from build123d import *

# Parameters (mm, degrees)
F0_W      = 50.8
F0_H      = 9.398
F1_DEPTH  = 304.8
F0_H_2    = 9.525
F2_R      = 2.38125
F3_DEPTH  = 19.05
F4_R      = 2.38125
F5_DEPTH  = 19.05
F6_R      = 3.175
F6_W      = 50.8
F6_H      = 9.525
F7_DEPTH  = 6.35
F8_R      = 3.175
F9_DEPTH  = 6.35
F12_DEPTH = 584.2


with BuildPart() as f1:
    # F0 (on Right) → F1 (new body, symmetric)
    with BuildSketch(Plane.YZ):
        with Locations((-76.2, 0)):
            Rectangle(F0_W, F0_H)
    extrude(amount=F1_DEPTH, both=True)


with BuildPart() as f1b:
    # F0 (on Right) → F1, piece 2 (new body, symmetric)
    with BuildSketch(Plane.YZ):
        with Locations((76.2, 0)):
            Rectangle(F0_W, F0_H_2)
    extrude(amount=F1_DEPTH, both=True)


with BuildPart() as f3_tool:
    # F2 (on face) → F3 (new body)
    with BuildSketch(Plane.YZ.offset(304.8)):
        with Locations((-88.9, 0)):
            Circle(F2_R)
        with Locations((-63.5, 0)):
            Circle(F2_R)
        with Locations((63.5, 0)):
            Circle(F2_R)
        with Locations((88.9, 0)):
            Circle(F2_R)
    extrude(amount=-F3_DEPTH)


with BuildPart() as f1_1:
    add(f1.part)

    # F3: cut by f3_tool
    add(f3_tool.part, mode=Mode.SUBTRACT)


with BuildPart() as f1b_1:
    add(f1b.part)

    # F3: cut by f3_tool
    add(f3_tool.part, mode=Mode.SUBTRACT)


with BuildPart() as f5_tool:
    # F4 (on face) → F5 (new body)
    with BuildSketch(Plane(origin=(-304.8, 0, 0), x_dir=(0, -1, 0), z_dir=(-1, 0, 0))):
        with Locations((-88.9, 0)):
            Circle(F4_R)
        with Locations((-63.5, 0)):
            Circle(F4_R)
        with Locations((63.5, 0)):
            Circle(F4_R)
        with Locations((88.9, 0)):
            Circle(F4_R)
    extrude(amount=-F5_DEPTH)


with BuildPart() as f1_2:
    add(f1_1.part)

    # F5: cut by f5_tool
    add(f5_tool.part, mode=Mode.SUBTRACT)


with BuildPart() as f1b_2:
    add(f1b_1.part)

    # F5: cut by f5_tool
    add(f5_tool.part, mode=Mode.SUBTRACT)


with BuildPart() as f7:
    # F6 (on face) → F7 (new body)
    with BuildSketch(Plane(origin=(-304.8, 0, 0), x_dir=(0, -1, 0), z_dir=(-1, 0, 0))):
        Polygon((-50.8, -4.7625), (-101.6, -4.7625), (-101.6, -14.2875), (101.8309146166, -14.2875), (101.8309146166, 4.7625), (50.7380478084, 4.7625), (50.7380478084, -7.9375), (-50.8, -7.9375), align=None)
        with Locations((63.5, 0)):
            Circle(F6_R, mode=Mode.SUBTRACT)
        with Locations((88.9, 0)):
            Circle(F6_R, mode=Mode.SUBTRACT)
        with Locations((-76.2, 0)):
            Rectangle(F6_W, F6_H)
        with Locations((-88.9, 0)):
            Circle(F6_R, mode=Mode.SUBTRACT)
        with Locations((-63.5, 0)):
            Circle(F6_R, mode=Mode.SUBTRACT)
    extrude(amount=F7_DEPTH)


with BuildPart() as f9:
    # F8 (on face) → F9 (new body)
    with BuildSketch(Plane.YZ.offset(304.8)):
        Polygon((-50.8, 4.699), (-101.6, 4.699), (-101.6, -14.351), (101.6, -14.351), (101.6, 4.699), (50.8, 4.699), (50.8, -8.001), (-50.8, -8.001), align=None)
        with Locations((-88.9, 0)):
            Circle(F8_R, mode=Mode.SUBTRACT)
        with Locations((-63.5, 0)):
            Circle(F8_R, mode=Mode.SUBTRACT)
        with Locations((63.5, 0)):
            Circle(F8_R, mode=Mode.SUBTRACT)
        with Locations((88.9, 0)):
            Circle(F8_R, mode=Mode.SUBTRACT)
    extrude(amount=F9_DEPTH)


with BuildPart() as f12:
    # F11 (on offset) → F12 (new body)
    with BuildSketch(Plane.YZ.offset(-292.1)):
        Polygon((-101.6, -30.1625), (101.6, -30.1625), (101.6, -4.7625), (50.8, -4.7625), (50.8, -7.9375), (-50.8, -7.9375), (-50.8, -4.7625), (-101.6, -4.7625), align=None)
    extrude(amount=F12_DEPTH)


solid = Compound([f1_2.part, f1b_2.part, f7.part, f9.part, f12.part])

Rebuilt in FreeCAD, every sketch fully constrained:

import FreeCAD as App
import Part
import Sketcher
from FreeCAD import Vector
Q = App.Units.Quantity

doc = App.newDocument("Part")
body = doc.addObject("PartDesign::Body", "Body")

# Sketch on YZ plane
sketch1 = doc.addObject("Sketcher::SketchObject", "Sketch")
body.addObject(sketch1)
sketch1.AttachmentSupport = (doc.YZ_Plane, [""])
sketch1.MapMode = "FlatFace"
sketch1.addGeometry([
    Part.LineSegment(Vector(-101.6, 4.699, 0), Vector(-101.6, -4.699, 0)),
    Part.LineSegment(Vector(-101.6, -4.699, 0), Vector(-50.8, -4.699, 0)),
    Part.LineSegment(Vector(-50.8, -4.699, 0), Vector(-50.8, 4.699, 0)),
    Part.LineSegment(Vector(-50.8, 4.699, 0), Vector(-101.6, 4.699, 0)),
], False)
sketch1.addConstraint([
    Sketcher.Constraint("Coincident", 0, 2, 1, 1),
    Sketcher.Constraint("Coincident", 1, 2, 2, 1),
    Sketcher.Constraint("Coincident", 2, 2, 3, 1),
    Sketcher.Constraint("Coincident", 3, 2, 0, 1),
    Sketcher.Constraint("Vertical", 0),
    Sketcher.Constraint("Horizontal", 1),
    Sketcher.Constraint("Vertical", 2),
    Sketcher.Constraint("Horizontal", 3),
    Sketcher.Constraint("DistanceX", 1, 1, 1, 2, Q("2 in")),
    Sketcher.Constraint("DistanceX", 0, 2, -1, 1, Q("4 in")),
    Sketcher.Constraint("DistanceY", 0, 2, 0, 1, Q("0.37 in")),
    Sketcher.Constraint("DistanceY", 0, 2, -1, 1, Q("0.185 in")),
])
pad1 = doc.addObject("PartDesign::Pad", "Pad")
body.addObject(pad1)
pad1.Profile = sketch1
pad1.Length = Q("24 in")
pad1.Midplane = True
body2 = doc.addObject("PartDesign::Body", "Body001")

# Sketch on YZ plane
sketch2 = doc.addObject("Sketcher::SketchObject", "Sketch001")
body2.addObject(sketch2)
sketch2.AttachmentSupport = (doc.getObject("YZ_Plane001"), [""])
sketch2.MapMode = "FlatFace"
sketch2.addGeometry([
    Part.LineSegment(Vector(50.8, 4.7625, 0), Vector(50.8, -4.7625, 0)),
    Part.LineSegment(Vector(50.8, -4.7625, 0), Vector(101.6, -4.7625, 0)),
    Part.LineSegment(Vector(101.6, -4.7625, 0), Vector(101.6, 4.7625, 0)),
    Part.LineSegment(Vector(101.6, 4.7625, 0), Vector(50.8, 4.7625, 0)),
], False)
sketch2.addConstraint([
    Sketcher.Constraint("Coincident", 0, 2, 1, 1),
    Sketcher.Constraint("Coincident", 1, 2, 2, 1),
    Sketcher.Constraint("Coincident", 2, 2, 3, 1),
    Sketcher.Constraint("Coincident", 3, 2, 0, 1),
    Sketcher.Constraint("Vertical", 0),
    Sketcher.Constraint("Horizontal", 1),
    Sketcher.Constraint("Vertical", 2),
    Sketcher.Constraint("Horizontal", 3),
    Sketcher.Constraint("DistanceX", 1, 1, 1, 2, Q("2 in")),
    Sketcher.Constraint("DistanceX", -1, 1, 0, 2, Q("2 in")),
    Sketcher.Constraint("DistanceY", 0, 2, 0, 1, Q("0.375 in")),
    Sketcher.Constraint("DistanceY", 0, 2, -1, 1, Q("0.1875 in")),
])
pad2 = doc.addObject("PartDesign::Pad", "Pad001")
body2.addObject(pad2)
pad2.Profile = sketch2
pad2.Length = Q("24 in")
pad2.Midplane = True
body3 = doc.addObject("PartDesign::Body", "Body002")
body3.AllowCompound = True

# Sketch on YZ plane
sketch3 = doc.addObject("Sketcher::SketchObject", "Sketch002")
body3.addObject(sketch3)
sketch3.AttachmentSupport = (doc.getObject("YZ_Plane002"), [""])
sketch3.MapMode = "FlatFace"
sketch3.AttachmentOffset = App.Placement(Vector(0, 0, 12 * 25.4), App.Rotation())
sketch3.addGeometry([
    Part.Circle(Vector(-88.9, 0, 0), Vector(0, 0, 1), 2.38125),
    Part.Circle(Vector(-63.5, 0, 0), Vector(0, 0, 1), 2.38125),
    Part.Circle(Vector(63.5, 0, 0), Vector(0, 0, 1), 2.38125),
    Part.Circle(Vector(88.9, 0, 0), Vector(0, 0, 1), 2.38125),
], False)
sketch3.addConstraint([
    Sketcher.Constraint("Equal", 0, 1),
    Sketcher.Constraint("Equal", 1, 2),
    Sketcher.Constraint("Equal", 2, 3),
    Sketcher.Constraint("Symmetric", 1, 3, 2, 3, -1, 1),
    Sketcher.Constraint("Symmetric", 0, 3, 3, 3, -1, 1),
    Sketcher.Constraint("PointOnObject", 0, 3, -1),
    Sketcher.Constraint("PointOnObject", 1, 3, -1),
    Sketcher.Constraint("Diameter", 0, Q("0.1875 in")),
    Sketcher.Constraint("DistanceX", 0, 3, 1, 3, Q("1 in")),
    Sketcher.Constraint("DistanceX", 1, 3, 2, 3, Q("5 in")),
])
pad3 = doc.addObject("PartDesign::Pad", "Pad002")
body3.addObject(pad3)
pad3.Profile = sketch3
pad3.Length = Q("0.75 in")
pad3.Reversed = True
doc.recompute()

body4 = doc.addObject("PartDesign::Body", "Body003")
body4.BaseFeature = body3
boolean = doc.addObject("PartDesign::Boolean", "Boolean")
body.addObject(boolean)
boolean.Type = "Cut"
boolean.addObjects([body4])
doc.recompute()

boolean2 = doc.addObject("PartDesign::Boolean", "Boolean001")
body2.addObject(boolean2)
boolean2.Type = "Cut"
boolean2.addObjects([body3])
body5 = doc.addObject("PartDesign::Body", "Body004")
body5.AllowCompound = True

# Sketch on YZ plane
sketch4 = doc.addObject("Sketcher::SketchObject", "Sketch003")
body5.addObject(sketch4)
sketch4.AttachmentSupport = (doc.getObject("YZ_Plane004"), [""])
sketch4.MapMode = "FlatFace"
sketch4.AttachmentOffset = App.Placement(Vector(0, 0, -12 * 25.4), App.Rotation())
sketch4.addGeometry([
    Part.Circle(Vector(88.9, 0, 0), Vector(0, 0, 1), 2.38125),
    Part.Circle(Vector(63.5, 0, 0), Vector(0, 0, 1), 2.38125),
    Part.Circle(Vector(-63.5, 0, 0), Vector(0, 0, 1), 2.38125),
    Part.Circle(Vector(-88.9, 0, 0), Vector(0, 0, 1), 2.38125),
], False)
sketch4.addConstraint([
    Sketcher.Constraint("Equal", 0, 1),
    Sketcher.Constraint("Equal", 1, 2),
    Sketcher.Constraint("Equal", 2, 3),
    Sketcher.Constraint("Symmetric", 1, 3, 2, 3, -1, 1),
    Sketcher.Constraint("Symmetric", 0, 3, 3, 3, -1, 1),
    Sketcher.Constraint("PointOnObject", 0, 3, -1),
    Sketcher.Constraint("PointOnObject", 1, 3, -1),
    Sketcher.Constraint("Diameter", 0, Q("0.1875 in")),
    Sketcher.Constraint("DistanceX", 1, 3, 0, 3, Q("1 in")),
    Sketcher.Constraint("DistanceX", 2, 3, 1, 3, Q("5 in")),
])
pad4 = doc.addObject("PartDesign::Pad", "Pad003")
body5.addObject(pad4)
pad4.Profile = sketch4
pad4.Length = Q("0.75 in")
doc.recompute()

body6 = doc.addObject("PartDesign::Body", "Body005")
body6.BaseFeature = body5
boolean3 = doc.addObject("PartDesign::Boolean", "Boolean002")
body.addObject(boolean3)
boolean3.Type = "Cut"
boolean3.addObjects([body6])
doc.recompute()

boolean4 = doc.addObject("PartDesign::Boolean", "Boolean003")
body2.addObject(boolean4)
boolean4.Type = "Cut"
boolean4.addObjects([body5])
body7 = doc.addObject("PartDesign::Body", "Body006")

# Sketch on YZ plane
sketch5 = doc.addObject("Sketcher::SketchObject", "Sketch004")
body7.addObject(sketch5)
sketch5.AttachmentSupport = (doc.getObject("YZ_Plane006"), [""])
sketch5.MapMode = "FlatFace"
sketch5.AttachmentOffset = App.Placement(Vector(0, 0, -12 * 25.4), App.Rotation())
sketch5.addGeometry([
    Part.LineSegment(Vector(50.8, -7.9375, 0), Vector(50.8, 4.7625, 0)),  # 0
    Part.LineSegment(Vector(50.8, 4.7625, 0), Vector(101.6, 4.7625, 0)),  # 1
    Part.LineSegment(Vector(101.6, 4.7625, 0), Vector(101.6, -14.2875, 0)),  # 2
    Part.LineSegment(Vector(101.6, -14.2875, 0), Vector(-101.830915, -14.2875, 0)),  # 3
    Part.LineSegment(Vector(-101.830915, -14.2875, 0), Vector(-101.830915, 4.7625, 0)),  # 4
    Part.LineSegment(Vector(-101.830915, 4.7625, 0), Vector(-50.738048, 4.7625, 0)),  # 5
    Part.LineSegment(Vector(-50.738048, 4.7625, 0), Vector(-50.738048, -7.9375, 0)),  # 6
    Part.LineSegment(Vector(-50.738048, -7.9375, 0), Vector(50.8, -7.9375, 0)),  # 7
    Part.Circle(Vector(88.9, 0, 0), Vector(0, 0, 1), 3.175),  # 8
    Part.Circle(Vector(63.5, 0, 0), Vector(0, 0, 1), 3.175),  # 9
    Part.Circle(Vector(-63.5, 0, 0), Vector(0, 0, 1), 3.175),  # 10
    Part.Circle(Vector(-88.9, 0, 0), Vector(0, 0, 1), 3.175),  # 11
], False)
sketch5.addConstraint([
    Sketcher.Constraint("Coincident", 0, 2, 1, 1),
    Sketcher.Constraint("Coincident", 1, 2, 2, 1),
    Sketcher.Constraint("Coincident", 2, 2, 3, 1),
    Sketcher.Constraint("Coincident", 3, 2, 4, 1),
    Sketcher.Constraint("Coincident", 4, 2, 5, 1),
    Sketcher.Constraint("Coincident", 5, 2, 6, 1),
    Sketcher.Constraint("Coincident", 6, 2, 7, 1),
    Sketcher.Constraint("Coincident", 7, 2, 0, 1),
    Sketcher.Constraint("Vertical", 0),
    Sketcher.Constraint("Horizontal", 1),
    Sketcher.Constraint("Vertical", 2),
    Sketcher.Constraint("Horizontal", 3),
    Sketcher.Constraint("Vertical", 4),
    Sketcher.Constraint("Horizontal", 5),
    Sketcher.Constraint("Vertical", 6),
    Sketcher.Constraint("Horizontal", 7),
    Sketcher.Constraint("Equal", 8, 9),
    Sketcher.Constraint("Equal", 9, 10),
    Sketcher.Constraint("Equal", 10, 11),
    Sketcher.Constraint("Symmetric", 9, 3, 10, 3, -1, 1),
    Sketcher.Constraint("Symmetric", 8, 3, 11, 3, -1, 1),
    Sketcher.Constraint("PointOnObject", 8, 3, -1),
    Sketcher.Constraint("PointOnObject", 9, 3, -1),
    Sketcher.Constraint("Horizontal", 1, 2, 4, 2),
    Sketcher.Constraint("Diameter", 8, Q("0.25 in")),
    Sketcher.Constraint("DistanceX", 1, 1, 1, 2, Q("2 in")),
    Sketcher.Constraint("DistanceY", 0, 1, 0, 2, Q("0.5 in")),
    Sketcher.Constraint("DistanceX", -1, 1, 0, 2, Q("2 in")),
    Sketcher.Constraint("DistanceX", 9, 3, 8, 3, Q("1 in")),
    Sketcher.Constraint("DistanceX", 10, 3, 9, 3, Q("5 in")),
    Sketcher.Constraint("DistanceY", 2, 2, 2, 1, Q("0.75 in")),
    Sketcher.Constraint("DistanceY", -1, 1, 0, 2, Q("0.1875 in")),
    Sketcher.Constraint("DistanceX", 3, 2, 3, 1, Q("203.430915 mm")),
    Sketcher.Constraint("DistanceX", 5, 1, 5, 2, Q("51.092867 mm")),
])
pad5 = doc.addObject("PartDesign::Pad", "Pad004")
body7.addObject(pad5)
pad5.Profile = sketch5
pad5.Length = Q("0.25 in")
pad5.Reversed = True
body8 = doc.addObject("PartDesign::Body", "Body007")

# Sketch on YZ plane
sketch6 = doc.addObject("Sketcher::SketchObject", "Sketch005")
body8.addObject(sketch6)
sketch6.AttachmentSupport = (doc.getObject("YZ_Plane007"), [""])
sketch6.MapMode = "FlatFace"
sketch6.AttachmentOffset = App.Placement(Vector(0, 0, 12 * 25.4), App.Rotation())
sketch6.addGeometry([
    Part.LineSegment(Vector(-50.8, 4.699, 0), Vector(-101.6, 4.699, 0)),  # 0
    Part.LineSegment(Vector(-101.6, 4.699, 0), Vector(-101.6, -14.351, 0)),  # 1
    Part.LineSegment(Vector(-101.6, -14.351, 0), Vector(101.6, -14.351, 0)),  # 2
    Part.LineSegment(Vector(101.6, -14.351, 0), Vector(101.6, 4.699, 0)),  # 3
    Part.LineSegment(Vector(101.6, 4.699, 0), Vector(50.8, 4.699, 0)),  # 4
    Part.LineSegment(Vector(50.8, 4.699, 0), Vector(50.8, -8.001, 0)),  # 5
    Part.LineSegment(Vector(50.8, -8.001, 0), Vector(-50.8, -8.001, 0)),  # 6
    Part.LineSegment(Vector(-50.8, -8.001, 0), Vector(-50.8, 4.699, 0)),  # 7
    Part.Circle(Vector(-88.9, 0, 0), Vector(0, 0, 1), 3.175),  # 8
    Part.Circle(Vector(-63.5, 0, 0), Vector(0, 0, 1), 3.175),  # 9
    Part.Circle(Vector(63.5, 0, 0), Vector(0, 0, 1), 3.175),  # 10
    Part.Circle(Vector(88.9, 0, 0), Vector(0, 0, 1), 3.175),  # 11
], False)
sketch6.addConstraint([
    Sketcher.Constraint("Coincident", 0, 2, 1, 1),
    Sketcher.Constraint("Coincident", 1, 2, 2, 1),
    Sketcher.Constraint("Coincident", 2, 2, 3, 1),
    Sketcher.Constraint("Coincident", 3, 2, 4, 1),
    Sketcher.Constraint("Coincident", 4, 2, 5, 1),
    Sketcher.Constraint("Coincident", 5, 2, 6, 1),
    Sketcher.Constraint("Coincident", 6, 2, 7, 1),
    Sketcher.Constraint("Coincident", 7, 2, 0, 1),
    Sketcher.Constraint("Horizontal", 0),
    Sketcher.Constraint("Vertical", 1),
    Sketcher.Constraint("Horizontal", 2),
    Sketcher.Constraint("Vertical", 3),
    Sketcher.Constraint("Horizontal", 4),
    Sketcher.Constraint("Vertical", 5),
    Sketcher.Constraint("Horizontal", 6),
    Sketcher.Constraint("Vertical", 7),
    Sketcher.Constraint("Equal", 8, 9),
    Sketcher.Constraint("Equal", 9, 10),
    Sketcher.Constraint("Equal", 10, 11),
    Sketcher.Constraint("Symmetric", 9, 3, 10, 3, -1, 1),
    Sketcher.Constraint("Symmetric", 8, 3, 11, 3, -1, 1),
    Sketcher.Constraint("Symmetric", 0, 2, 3, 2, -2),
    Sketcher.Constraint("PointOnObject", 8, 3, -1),
    Sketcher.Constraint("PointOnObject", 9, 3, -1),
    Sketcher.Constraint("Equal", 0, 4),
    Sketcher.Constraint("Diameter", 8, Q("0.25 in")),
    Sketcher.Constraint("DistanceX", 0, 2, 0, 1, Q("2 in")),
    Sketcher.Constraint("DistanceX", 2, 1, 2, 2, Q("8 in")),
    Sketcher.Constraint("DistanceY", 5, 2, 5, 1, Q("0.5 in")),
    Sketcher.Constraint("DistanceX", 8, 3, 9, 3, Q("1 in")),
    Sketcher.Constraint("DistanceX", 9, 3, 10, 3, Q("5 in")),
    Sketcher.Constraint("DistanceY", 1, 2, 1, 1, Q("0.75 in")),
    Sketcher.Constraint("DistanceY", -1, 1, 0, 2, Q("0.185 in")),
])
pad6 = doc.addObject("PartDesign::Pad", "Pad005")
body8.addObject(pad6)
pad6.Profile = sketch6
pad6.Length = Q("0.25 in")
body9 = doc.addObject("PartDesign::Body", "Body008")

# Sketch on YZ plane
sketch7 = doc.addObject("Sketcher::SketchObject", "Sketch006")
body9.addObject(sketch7)
sketch7.AttachmentSupport = (doc.getObject("YZ_Plane008"), [""])
sketch7.MapMode = "FlatFace"
sketch7.AttachmentOffset = App.Placement(Vector(0, 0, -11.5 * 25.4), App.Rotation())
sketch7.addGeometry([
    Part.LineSegment(Vector(-101.6, -30.1625, 0), Vector(101.6, -30.1625, 0)),  # 0
    Part.LineSegment(Vector(101.6, -30.1625, 0), Vector(101.6, -4.7625, 0)),  # 1
    Part.LineSegment(Vector(101.6, -4.7625, 0), Vector(50.8, -4.7625, 0)),  # 2
    Part.LineSegment(Vector(50.8, -4.7625, 0), Vector(50.8, -7.9375, 0)),  # 3
    Part.LineSegment(Vector(50.8, -7.9375, 0), Vector(-50.8, -7.9375, 0)),  # 4
    Part.LineSegment(Vector(-50.8, -7.9375, 0), Vector(-50.8, -4.7625, 0)),  # 5
    Part.LineSegment(Vector(-50.8, -4.7625, 0), Vector(-101.6, -4.7625, 0)),  # 6
    Part.LineSegment(Vector(-101.6, -4.7625, 0), Vector(-101.6, -30.1625, 0)),  # 7
], False)
sketch7.addConstraint([
    Sketcher.Constraint("Coincident", 0, 2, 1, 1),
    Sketcher.Constraint("Coincident", 1, 2, 2, 1),
    Sketcher.Constraint("Coincident", 2, 2, 3, 1),
    Sketcher.Constraint("Coincident", 3, 2, 4, 1),
    Sketcher.Constraint("Coincident", 4, 2, 5, 1),
    Sketcher.Constraint("Coincident", 5, 2, 6, 1),
    Sketcher.Constraint("Coincident", 6, 2, 7, 1),
    Sketcher.Constraint("Coincident", 7, 2, 0, 1),
    Sketcher.Constraint("Horizontal", 0),
    Sketcher.Constraint("Vertical", 1),
    Sketcher.Constraint("Horizontal", 2),
    Sketcher.Constraint("Vertical", 3),
    Sketcher.Constraint("Horizontal", 4),
    Sketcher.Constraint("Vertical", 5),
    Sketcher.Constraint("Horizontal", 6),
    Sketcher.Constraint("Vertical", 7),
    Sketcher.Constraint("Symmetric", 2, 2, 5, 2, -2),
    Sketcher.Constraint("Equal", 2, 6),
    Sketcher.Constraint("DistanceX", 0, 1, 0, 2, Q("8 in")),
    Sketcher.Constraint("DistanceX", 2, 2, 2, 1, Q("2 in")),
    Sketcher.Constraint("DistanceY", 1, 1, 1, 2, Q("1 in")),
    Sketcher.Constraint("DistanceY", 3, 2, 3, 1, Q("0.125 in")),
    Sketcher.Constraint("DistanceY", 0, 2, -1, 1, Q("1.1875 in")),
])
pad7 = doc.addObject("PartDesign::Pad", "Pad006")
body9.addObject(pad7)
pad7.Profile = sketch7
pad7.Length = Q("23 in")

doc.recompute()
